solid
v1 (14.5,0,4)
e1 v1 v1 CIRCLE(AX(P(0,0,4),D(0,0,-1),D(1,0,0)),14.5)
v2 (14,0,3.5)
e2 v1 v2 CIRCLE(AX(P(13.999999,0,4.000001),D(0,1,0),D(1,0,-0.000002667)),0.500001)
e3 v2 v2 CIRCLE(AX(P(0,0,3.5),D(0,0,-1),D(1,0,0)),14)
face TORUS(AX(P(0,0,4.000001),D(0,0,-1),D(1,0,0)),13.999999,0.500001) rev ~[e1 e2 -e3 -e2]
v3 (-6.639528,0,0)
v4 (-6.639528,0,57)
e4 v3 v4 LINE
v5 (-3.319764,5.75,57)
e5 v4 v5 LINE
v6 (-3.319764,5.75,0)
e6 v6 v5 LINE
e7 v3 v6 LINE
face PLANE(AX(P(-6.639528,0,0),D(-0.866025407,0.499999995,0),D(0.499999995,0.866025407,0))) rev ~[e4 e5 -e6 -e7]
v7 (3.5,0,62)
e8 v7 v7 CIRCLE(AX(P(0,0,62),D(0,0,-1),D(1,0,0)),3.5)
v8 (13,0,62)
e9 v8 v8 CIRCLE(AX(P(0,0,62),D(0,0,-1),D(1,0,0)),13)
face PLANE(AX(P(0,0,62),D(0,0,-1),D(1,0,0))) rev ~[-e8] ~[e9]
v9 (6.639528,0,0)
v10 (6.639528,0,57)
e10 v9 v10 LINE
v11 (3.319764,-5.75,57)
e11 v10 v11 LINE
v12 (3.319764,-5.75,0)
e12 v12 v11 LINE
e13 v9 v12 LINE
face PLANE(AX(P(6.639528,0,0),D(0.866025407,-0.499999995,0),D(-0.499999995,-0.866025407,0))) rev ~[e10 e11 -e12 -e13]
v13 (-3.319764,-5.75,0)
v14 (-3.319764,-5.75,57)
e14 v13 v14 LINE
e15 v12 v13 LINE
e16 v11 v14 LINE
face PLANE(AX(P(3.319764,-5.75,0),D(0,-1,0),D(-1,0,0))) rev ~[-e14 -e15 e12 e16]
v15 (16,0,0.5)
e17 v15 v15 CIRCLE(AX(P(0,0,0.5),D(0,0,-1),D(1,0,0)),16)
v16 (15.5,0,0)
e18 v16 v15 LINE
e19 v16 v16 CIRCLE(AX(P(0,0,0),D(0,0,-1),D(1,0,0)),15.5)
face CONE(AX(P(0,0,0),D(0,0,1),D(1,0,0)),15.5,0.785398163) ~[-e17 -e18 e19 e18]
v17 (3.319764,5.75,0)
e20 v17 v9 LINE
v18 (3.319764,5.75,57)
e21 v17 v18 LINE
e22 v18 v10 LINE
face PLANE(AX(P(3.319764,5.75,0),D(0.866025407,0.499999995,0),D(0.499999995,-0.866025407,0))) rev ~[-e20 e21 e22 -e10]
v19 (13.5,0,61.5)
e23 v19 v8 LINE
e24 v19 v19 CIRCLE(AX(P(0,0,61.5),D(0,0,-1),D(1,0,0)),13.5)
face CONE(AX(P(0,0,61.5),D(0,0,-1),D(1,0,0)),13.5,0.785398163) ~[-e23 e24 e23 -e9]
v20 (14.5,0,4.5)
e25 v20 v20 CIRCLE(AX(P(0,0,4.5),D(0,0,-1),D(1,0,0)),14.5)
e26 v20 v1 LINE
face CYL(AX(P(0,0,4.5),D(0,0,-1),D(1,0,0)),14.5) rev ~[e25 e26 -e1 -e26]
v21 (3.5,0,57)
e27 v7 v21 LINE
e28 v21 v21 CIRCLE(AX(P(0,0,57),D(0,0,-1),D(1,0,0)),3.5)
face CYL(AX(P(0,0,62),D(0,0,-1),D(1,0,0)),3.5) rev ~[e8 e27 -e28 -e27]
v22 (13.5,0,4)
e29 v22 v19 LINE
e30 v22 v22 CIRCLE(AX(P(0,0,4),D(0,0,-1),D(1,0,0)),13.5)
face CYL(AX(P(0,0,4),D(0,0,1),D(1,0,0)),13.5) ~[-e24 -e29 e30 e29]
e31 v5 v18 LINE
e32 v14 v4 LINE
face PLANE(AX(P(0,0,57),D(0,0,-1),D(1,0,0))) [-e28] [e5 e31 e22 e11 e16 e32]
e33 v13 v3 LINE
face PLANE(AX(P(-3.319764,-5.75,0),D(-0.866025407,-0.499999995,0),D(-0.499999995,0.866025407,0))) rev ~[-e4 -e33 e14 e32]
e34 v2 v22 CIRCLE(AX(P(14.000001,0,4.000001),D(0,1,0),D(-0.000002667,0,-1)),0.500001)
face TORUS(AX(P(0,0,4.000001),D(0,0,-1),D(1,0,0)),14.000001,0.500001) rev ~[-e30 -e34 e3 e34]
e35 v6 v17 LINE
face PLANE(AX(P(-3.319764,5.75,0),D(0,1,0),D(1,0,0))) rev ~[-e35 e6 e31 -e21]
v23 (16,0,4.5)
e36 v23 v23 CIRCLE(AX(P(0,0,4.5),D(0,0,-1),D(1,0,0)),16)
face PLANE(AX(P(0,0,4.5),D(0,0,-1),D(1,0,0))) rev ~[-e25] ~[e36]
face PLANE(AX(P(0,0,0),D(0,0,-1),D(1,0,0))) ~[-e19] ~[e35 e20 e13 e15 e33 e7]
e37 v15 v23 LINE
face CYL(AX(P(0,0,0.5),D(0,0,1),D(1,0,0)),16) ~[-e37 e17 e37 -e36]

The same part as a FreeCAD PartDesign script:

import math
import FreeCAD as App
import Part
import Sketcher
Q = App.Units.Quantity

doc = App.newDocument("Part")
body = doc.addObject("PartDesign::Body", "Body")

sketch1 = body.newObject("Sketcher::SketchObject", "Sketch")
sketch1.AttachmentSupport = (doc.getObject("XZ_Plane"), [""])
sketch1.MapMode = "FlatFace"
sketch1.addGeometry([
    Part.LineSegment(App.Vector(0, 57, 0), App.Vector(0, 0, 0)),
    Part.LineSegment(App.Vector(0, 0, 0), App.Vector(15.5, 0, 0)),
    Part.LineSegment(App.Vector(15.5, 0, 0), App.Vector(16, 0.5, 0)),
    Part.LineSegment(App.Vector(16, 0.5, 0), App.Vector(16, 4.5, 0)),
    Part.LineSegment(App.Vector(16, 4.5, 0), App.Vector(14.5, 4.5, 0)),
    Part.LineSegment(App.Vector(14.5, 4.5, 0), App.Vector(14.5, 4, 0)),
    Part.ArcOfCircle(Part.Circle(App.Vector(14, 4, 0), App.Vector(0, 0, 1), 0.5), math.radians(-90), math.radians(0)),
    Part.ArcOfCircle(Part.Circle(App.Vector(14, 4, 0), App.Vector(0, 0, 1), 0.5), math.radians(-180), math.radians(-90)),
    Part.LineSegment(App.Vector(13.5, 4, 0), App.Vector(13.5, 61.5, 0)),
    Part.LineSegment(App.Vector(13.5, 61.5, 0), App.Vector(13, 62, 0)),
    Part.LineSegment(App.Vector(13, 62, 0), App.Vector(3.5, 62, 0)),
    Part.LineSegment(App.Vector(3.5, 62, 0), App.Vector(3.5, 57, 0)),
    Part.LineSegment(App.Vector(3.5, 57, 0), App.Vector(0, 57, 0)),
], False)
sketch1.addConstraint([
    Sketcher.Constraint("Coincident", 0, 2, 1, 1),
    Sketcher.Constraint("Coincident", 1, 2, 2, 1),
    Sketcher.Constraint("Coincident", 2, 2, 3, 1),
    Sketcher.Constraint("Coincident", 3, 2, 4, 1),
    Sketcher.Constraint("Coincident", 4, 2, 5, 1),
    Sketcher.Constraint("Coincident", 5, 2, 6, 2),
    Sketcher.Constraint("Coincident", 6, 1, 7, 2),
    Sketcher.Constraint("Coincident", 7, 1, 8, 1),
    Sketcher.Constraint("Coincident", 8, 2, 9, 1),
    Sketcher.Constraint("Coincident", 9, 2, 10, 1),
    Sketcher.Constraint("Coincident", 10, 2, 11, 1),
    Sketcher.Constraint("Coincident", 11, 2, 12, 1),
    Sketcher.Constraint("Coincident", 12, 2, 0, 1),
    Sketcher.Constraint("Vertical", 0),
    Sketcher.Constraint("Horizontal", 1),
    Sketcher.Constraint("Vertical", 3),
    Sketcher.Constraint("Horizontal", 4),
    Sketcher.Constraint("Vertical", 5),
    Sketcher.Constraint("Vertical", 8),
    Sketcher.Constraint("Horizontal", 10),
    Sketcher.Constraint("Vertical", 11),
    Sketcher.Constraint("Horizontal", 12),
    Sketcher.Constraint("Coincident", 0, 2, -1, 1),
    Sketcher.Constraint("Coincident", 7, 3, 6, 3),
    Sketcher.Constraint("Perpendicular", 2, 9),
    Sketcher.Constraint("Horizontal", 7, 3, 5, 2),
    Sketcher.Constraint("Horizontal", 5, 2, 7, 1),
    Sketcher.Constraint("Vertical", 7, 3, 6, 1),
    Sketcher.Constraint("Equal", 2, 9),
    Sketcher.Constraint("Radius", 6, Q("0.500001 mm")),
    Sketcher.Constraint("DistanceY", 0, 2, 0, 1, Q("57 mm")),
    Sketcher.Constraint("DistanceY", 3, 1, 3, 2, Q("4 mm")),
    Sketcher.Constraint("DistanceY", 11, 2, 11, 1, Q("5 mm")),
    Sketcher.Constraint("Angle", 2, Q("45 deg")),
    Sketcher.Constraint("DistanceX", 1, 1, 1, 2, Q("15.5 mm")),
    Sketcher.Constraint("DistanceX", 4, 2, 4, 1, Q("1.5 mm")),
    Sketcher.Constraint("DistanceX", 10, 2, 10, 1, Q("9.5 mm")),
    Sketcher.Constraint("DistanceY", 5, 2, 5, 1, Q("0.5 mm")),
    Sketcher.Constraint("DistanceY", 8, 1, 8, 2, Q("57.5 mm")),
])
revolution = body.newObject("PartDesign::Revolution", "Revolution")
revolution.Profile = sketch1
revolution.ReferenceAxis = (sketch1, ["V_Axis"])
revolution.Angle = 360

sketch2 = body.newObject("Sketcher::SketchObject", "Sketch001")
sketch2.AttachmentSupport = (doc.getObject("XY_Plane"), [""])
sketch2.MapMode = "FlatFace"
sketch2.addGeometry([
    Part.LineSegment(App.Vector(3, 6, 0), App.Vector(7, 0, 0)),
    Part.LineSegment(App.Vector(7, 0, 0), App.Vector(3, -6, 0)),
    Part.LineSegment(App.Vector(3, -6, 0), App.Vector(-3, -6, 0)),
    Part.LineSegment(App.Vector(-3, -6, 0), App.Vector(-7, 0, 0)),
    Part.LineSegment(App.Vector(-7, 0, 0), App.Vector(-3, 6, 0)),
    Part.LineSegment(App.Vector(-3, 6, 0), App.Vector(3, 6, 0)),
], False)
sketch2.addConstraint([
    Sketcher.Constraint("Coincident", 0, 2, 1, 1),
    Sketcher.Constraint("Coincident", 1, 2, 2, 1),
    Sketcher.Constraint("Coincident", 2, 2, 3, 1),
    Sketcher.Constraint("Coincident", 3, 2, 4, 1),
    Sketcher.Constraint("Coincident", 4, 2, 5, 1),
    Sketcher.Constraint("Coincident", 5, 2, 0, 1),
    Sketcher.Constraint("Horizontal", 2),
    Sketcher.Constraint("Horizontal", 5),
    Sketcher.Constraint("Symmetric", 0, 2, 3, 2, -1, 1),
    Sketcher.Constraint("Symmetric", 1, 2, 4, 2, -1, 1),
    Sketcher.Constraint("PointOnObject", 0, 2, -1),
    Sketcher.Constraint("Parallel", 0, 3),
    Sketcher.Constraint("Vertical", 2, 2, 4, 2),
    Sketcher.Constraint("Angle", 0, Q("-60 deg")),
    Sketcher.Constraint("DistanceY", 2, 2, 4, 2, Q("11.5 mm")),
    Sketcher.Constraint("DistanceX", 2, 2, 2, 1, Q("6.639528 mm")),
])
pocket1 = body.newObject("PartDesign::Pocket", "Pocket")
pocket1.Profile = sketch2
pocket1.Length = 57
pocket1.Reversed = True

doc.recompute()
